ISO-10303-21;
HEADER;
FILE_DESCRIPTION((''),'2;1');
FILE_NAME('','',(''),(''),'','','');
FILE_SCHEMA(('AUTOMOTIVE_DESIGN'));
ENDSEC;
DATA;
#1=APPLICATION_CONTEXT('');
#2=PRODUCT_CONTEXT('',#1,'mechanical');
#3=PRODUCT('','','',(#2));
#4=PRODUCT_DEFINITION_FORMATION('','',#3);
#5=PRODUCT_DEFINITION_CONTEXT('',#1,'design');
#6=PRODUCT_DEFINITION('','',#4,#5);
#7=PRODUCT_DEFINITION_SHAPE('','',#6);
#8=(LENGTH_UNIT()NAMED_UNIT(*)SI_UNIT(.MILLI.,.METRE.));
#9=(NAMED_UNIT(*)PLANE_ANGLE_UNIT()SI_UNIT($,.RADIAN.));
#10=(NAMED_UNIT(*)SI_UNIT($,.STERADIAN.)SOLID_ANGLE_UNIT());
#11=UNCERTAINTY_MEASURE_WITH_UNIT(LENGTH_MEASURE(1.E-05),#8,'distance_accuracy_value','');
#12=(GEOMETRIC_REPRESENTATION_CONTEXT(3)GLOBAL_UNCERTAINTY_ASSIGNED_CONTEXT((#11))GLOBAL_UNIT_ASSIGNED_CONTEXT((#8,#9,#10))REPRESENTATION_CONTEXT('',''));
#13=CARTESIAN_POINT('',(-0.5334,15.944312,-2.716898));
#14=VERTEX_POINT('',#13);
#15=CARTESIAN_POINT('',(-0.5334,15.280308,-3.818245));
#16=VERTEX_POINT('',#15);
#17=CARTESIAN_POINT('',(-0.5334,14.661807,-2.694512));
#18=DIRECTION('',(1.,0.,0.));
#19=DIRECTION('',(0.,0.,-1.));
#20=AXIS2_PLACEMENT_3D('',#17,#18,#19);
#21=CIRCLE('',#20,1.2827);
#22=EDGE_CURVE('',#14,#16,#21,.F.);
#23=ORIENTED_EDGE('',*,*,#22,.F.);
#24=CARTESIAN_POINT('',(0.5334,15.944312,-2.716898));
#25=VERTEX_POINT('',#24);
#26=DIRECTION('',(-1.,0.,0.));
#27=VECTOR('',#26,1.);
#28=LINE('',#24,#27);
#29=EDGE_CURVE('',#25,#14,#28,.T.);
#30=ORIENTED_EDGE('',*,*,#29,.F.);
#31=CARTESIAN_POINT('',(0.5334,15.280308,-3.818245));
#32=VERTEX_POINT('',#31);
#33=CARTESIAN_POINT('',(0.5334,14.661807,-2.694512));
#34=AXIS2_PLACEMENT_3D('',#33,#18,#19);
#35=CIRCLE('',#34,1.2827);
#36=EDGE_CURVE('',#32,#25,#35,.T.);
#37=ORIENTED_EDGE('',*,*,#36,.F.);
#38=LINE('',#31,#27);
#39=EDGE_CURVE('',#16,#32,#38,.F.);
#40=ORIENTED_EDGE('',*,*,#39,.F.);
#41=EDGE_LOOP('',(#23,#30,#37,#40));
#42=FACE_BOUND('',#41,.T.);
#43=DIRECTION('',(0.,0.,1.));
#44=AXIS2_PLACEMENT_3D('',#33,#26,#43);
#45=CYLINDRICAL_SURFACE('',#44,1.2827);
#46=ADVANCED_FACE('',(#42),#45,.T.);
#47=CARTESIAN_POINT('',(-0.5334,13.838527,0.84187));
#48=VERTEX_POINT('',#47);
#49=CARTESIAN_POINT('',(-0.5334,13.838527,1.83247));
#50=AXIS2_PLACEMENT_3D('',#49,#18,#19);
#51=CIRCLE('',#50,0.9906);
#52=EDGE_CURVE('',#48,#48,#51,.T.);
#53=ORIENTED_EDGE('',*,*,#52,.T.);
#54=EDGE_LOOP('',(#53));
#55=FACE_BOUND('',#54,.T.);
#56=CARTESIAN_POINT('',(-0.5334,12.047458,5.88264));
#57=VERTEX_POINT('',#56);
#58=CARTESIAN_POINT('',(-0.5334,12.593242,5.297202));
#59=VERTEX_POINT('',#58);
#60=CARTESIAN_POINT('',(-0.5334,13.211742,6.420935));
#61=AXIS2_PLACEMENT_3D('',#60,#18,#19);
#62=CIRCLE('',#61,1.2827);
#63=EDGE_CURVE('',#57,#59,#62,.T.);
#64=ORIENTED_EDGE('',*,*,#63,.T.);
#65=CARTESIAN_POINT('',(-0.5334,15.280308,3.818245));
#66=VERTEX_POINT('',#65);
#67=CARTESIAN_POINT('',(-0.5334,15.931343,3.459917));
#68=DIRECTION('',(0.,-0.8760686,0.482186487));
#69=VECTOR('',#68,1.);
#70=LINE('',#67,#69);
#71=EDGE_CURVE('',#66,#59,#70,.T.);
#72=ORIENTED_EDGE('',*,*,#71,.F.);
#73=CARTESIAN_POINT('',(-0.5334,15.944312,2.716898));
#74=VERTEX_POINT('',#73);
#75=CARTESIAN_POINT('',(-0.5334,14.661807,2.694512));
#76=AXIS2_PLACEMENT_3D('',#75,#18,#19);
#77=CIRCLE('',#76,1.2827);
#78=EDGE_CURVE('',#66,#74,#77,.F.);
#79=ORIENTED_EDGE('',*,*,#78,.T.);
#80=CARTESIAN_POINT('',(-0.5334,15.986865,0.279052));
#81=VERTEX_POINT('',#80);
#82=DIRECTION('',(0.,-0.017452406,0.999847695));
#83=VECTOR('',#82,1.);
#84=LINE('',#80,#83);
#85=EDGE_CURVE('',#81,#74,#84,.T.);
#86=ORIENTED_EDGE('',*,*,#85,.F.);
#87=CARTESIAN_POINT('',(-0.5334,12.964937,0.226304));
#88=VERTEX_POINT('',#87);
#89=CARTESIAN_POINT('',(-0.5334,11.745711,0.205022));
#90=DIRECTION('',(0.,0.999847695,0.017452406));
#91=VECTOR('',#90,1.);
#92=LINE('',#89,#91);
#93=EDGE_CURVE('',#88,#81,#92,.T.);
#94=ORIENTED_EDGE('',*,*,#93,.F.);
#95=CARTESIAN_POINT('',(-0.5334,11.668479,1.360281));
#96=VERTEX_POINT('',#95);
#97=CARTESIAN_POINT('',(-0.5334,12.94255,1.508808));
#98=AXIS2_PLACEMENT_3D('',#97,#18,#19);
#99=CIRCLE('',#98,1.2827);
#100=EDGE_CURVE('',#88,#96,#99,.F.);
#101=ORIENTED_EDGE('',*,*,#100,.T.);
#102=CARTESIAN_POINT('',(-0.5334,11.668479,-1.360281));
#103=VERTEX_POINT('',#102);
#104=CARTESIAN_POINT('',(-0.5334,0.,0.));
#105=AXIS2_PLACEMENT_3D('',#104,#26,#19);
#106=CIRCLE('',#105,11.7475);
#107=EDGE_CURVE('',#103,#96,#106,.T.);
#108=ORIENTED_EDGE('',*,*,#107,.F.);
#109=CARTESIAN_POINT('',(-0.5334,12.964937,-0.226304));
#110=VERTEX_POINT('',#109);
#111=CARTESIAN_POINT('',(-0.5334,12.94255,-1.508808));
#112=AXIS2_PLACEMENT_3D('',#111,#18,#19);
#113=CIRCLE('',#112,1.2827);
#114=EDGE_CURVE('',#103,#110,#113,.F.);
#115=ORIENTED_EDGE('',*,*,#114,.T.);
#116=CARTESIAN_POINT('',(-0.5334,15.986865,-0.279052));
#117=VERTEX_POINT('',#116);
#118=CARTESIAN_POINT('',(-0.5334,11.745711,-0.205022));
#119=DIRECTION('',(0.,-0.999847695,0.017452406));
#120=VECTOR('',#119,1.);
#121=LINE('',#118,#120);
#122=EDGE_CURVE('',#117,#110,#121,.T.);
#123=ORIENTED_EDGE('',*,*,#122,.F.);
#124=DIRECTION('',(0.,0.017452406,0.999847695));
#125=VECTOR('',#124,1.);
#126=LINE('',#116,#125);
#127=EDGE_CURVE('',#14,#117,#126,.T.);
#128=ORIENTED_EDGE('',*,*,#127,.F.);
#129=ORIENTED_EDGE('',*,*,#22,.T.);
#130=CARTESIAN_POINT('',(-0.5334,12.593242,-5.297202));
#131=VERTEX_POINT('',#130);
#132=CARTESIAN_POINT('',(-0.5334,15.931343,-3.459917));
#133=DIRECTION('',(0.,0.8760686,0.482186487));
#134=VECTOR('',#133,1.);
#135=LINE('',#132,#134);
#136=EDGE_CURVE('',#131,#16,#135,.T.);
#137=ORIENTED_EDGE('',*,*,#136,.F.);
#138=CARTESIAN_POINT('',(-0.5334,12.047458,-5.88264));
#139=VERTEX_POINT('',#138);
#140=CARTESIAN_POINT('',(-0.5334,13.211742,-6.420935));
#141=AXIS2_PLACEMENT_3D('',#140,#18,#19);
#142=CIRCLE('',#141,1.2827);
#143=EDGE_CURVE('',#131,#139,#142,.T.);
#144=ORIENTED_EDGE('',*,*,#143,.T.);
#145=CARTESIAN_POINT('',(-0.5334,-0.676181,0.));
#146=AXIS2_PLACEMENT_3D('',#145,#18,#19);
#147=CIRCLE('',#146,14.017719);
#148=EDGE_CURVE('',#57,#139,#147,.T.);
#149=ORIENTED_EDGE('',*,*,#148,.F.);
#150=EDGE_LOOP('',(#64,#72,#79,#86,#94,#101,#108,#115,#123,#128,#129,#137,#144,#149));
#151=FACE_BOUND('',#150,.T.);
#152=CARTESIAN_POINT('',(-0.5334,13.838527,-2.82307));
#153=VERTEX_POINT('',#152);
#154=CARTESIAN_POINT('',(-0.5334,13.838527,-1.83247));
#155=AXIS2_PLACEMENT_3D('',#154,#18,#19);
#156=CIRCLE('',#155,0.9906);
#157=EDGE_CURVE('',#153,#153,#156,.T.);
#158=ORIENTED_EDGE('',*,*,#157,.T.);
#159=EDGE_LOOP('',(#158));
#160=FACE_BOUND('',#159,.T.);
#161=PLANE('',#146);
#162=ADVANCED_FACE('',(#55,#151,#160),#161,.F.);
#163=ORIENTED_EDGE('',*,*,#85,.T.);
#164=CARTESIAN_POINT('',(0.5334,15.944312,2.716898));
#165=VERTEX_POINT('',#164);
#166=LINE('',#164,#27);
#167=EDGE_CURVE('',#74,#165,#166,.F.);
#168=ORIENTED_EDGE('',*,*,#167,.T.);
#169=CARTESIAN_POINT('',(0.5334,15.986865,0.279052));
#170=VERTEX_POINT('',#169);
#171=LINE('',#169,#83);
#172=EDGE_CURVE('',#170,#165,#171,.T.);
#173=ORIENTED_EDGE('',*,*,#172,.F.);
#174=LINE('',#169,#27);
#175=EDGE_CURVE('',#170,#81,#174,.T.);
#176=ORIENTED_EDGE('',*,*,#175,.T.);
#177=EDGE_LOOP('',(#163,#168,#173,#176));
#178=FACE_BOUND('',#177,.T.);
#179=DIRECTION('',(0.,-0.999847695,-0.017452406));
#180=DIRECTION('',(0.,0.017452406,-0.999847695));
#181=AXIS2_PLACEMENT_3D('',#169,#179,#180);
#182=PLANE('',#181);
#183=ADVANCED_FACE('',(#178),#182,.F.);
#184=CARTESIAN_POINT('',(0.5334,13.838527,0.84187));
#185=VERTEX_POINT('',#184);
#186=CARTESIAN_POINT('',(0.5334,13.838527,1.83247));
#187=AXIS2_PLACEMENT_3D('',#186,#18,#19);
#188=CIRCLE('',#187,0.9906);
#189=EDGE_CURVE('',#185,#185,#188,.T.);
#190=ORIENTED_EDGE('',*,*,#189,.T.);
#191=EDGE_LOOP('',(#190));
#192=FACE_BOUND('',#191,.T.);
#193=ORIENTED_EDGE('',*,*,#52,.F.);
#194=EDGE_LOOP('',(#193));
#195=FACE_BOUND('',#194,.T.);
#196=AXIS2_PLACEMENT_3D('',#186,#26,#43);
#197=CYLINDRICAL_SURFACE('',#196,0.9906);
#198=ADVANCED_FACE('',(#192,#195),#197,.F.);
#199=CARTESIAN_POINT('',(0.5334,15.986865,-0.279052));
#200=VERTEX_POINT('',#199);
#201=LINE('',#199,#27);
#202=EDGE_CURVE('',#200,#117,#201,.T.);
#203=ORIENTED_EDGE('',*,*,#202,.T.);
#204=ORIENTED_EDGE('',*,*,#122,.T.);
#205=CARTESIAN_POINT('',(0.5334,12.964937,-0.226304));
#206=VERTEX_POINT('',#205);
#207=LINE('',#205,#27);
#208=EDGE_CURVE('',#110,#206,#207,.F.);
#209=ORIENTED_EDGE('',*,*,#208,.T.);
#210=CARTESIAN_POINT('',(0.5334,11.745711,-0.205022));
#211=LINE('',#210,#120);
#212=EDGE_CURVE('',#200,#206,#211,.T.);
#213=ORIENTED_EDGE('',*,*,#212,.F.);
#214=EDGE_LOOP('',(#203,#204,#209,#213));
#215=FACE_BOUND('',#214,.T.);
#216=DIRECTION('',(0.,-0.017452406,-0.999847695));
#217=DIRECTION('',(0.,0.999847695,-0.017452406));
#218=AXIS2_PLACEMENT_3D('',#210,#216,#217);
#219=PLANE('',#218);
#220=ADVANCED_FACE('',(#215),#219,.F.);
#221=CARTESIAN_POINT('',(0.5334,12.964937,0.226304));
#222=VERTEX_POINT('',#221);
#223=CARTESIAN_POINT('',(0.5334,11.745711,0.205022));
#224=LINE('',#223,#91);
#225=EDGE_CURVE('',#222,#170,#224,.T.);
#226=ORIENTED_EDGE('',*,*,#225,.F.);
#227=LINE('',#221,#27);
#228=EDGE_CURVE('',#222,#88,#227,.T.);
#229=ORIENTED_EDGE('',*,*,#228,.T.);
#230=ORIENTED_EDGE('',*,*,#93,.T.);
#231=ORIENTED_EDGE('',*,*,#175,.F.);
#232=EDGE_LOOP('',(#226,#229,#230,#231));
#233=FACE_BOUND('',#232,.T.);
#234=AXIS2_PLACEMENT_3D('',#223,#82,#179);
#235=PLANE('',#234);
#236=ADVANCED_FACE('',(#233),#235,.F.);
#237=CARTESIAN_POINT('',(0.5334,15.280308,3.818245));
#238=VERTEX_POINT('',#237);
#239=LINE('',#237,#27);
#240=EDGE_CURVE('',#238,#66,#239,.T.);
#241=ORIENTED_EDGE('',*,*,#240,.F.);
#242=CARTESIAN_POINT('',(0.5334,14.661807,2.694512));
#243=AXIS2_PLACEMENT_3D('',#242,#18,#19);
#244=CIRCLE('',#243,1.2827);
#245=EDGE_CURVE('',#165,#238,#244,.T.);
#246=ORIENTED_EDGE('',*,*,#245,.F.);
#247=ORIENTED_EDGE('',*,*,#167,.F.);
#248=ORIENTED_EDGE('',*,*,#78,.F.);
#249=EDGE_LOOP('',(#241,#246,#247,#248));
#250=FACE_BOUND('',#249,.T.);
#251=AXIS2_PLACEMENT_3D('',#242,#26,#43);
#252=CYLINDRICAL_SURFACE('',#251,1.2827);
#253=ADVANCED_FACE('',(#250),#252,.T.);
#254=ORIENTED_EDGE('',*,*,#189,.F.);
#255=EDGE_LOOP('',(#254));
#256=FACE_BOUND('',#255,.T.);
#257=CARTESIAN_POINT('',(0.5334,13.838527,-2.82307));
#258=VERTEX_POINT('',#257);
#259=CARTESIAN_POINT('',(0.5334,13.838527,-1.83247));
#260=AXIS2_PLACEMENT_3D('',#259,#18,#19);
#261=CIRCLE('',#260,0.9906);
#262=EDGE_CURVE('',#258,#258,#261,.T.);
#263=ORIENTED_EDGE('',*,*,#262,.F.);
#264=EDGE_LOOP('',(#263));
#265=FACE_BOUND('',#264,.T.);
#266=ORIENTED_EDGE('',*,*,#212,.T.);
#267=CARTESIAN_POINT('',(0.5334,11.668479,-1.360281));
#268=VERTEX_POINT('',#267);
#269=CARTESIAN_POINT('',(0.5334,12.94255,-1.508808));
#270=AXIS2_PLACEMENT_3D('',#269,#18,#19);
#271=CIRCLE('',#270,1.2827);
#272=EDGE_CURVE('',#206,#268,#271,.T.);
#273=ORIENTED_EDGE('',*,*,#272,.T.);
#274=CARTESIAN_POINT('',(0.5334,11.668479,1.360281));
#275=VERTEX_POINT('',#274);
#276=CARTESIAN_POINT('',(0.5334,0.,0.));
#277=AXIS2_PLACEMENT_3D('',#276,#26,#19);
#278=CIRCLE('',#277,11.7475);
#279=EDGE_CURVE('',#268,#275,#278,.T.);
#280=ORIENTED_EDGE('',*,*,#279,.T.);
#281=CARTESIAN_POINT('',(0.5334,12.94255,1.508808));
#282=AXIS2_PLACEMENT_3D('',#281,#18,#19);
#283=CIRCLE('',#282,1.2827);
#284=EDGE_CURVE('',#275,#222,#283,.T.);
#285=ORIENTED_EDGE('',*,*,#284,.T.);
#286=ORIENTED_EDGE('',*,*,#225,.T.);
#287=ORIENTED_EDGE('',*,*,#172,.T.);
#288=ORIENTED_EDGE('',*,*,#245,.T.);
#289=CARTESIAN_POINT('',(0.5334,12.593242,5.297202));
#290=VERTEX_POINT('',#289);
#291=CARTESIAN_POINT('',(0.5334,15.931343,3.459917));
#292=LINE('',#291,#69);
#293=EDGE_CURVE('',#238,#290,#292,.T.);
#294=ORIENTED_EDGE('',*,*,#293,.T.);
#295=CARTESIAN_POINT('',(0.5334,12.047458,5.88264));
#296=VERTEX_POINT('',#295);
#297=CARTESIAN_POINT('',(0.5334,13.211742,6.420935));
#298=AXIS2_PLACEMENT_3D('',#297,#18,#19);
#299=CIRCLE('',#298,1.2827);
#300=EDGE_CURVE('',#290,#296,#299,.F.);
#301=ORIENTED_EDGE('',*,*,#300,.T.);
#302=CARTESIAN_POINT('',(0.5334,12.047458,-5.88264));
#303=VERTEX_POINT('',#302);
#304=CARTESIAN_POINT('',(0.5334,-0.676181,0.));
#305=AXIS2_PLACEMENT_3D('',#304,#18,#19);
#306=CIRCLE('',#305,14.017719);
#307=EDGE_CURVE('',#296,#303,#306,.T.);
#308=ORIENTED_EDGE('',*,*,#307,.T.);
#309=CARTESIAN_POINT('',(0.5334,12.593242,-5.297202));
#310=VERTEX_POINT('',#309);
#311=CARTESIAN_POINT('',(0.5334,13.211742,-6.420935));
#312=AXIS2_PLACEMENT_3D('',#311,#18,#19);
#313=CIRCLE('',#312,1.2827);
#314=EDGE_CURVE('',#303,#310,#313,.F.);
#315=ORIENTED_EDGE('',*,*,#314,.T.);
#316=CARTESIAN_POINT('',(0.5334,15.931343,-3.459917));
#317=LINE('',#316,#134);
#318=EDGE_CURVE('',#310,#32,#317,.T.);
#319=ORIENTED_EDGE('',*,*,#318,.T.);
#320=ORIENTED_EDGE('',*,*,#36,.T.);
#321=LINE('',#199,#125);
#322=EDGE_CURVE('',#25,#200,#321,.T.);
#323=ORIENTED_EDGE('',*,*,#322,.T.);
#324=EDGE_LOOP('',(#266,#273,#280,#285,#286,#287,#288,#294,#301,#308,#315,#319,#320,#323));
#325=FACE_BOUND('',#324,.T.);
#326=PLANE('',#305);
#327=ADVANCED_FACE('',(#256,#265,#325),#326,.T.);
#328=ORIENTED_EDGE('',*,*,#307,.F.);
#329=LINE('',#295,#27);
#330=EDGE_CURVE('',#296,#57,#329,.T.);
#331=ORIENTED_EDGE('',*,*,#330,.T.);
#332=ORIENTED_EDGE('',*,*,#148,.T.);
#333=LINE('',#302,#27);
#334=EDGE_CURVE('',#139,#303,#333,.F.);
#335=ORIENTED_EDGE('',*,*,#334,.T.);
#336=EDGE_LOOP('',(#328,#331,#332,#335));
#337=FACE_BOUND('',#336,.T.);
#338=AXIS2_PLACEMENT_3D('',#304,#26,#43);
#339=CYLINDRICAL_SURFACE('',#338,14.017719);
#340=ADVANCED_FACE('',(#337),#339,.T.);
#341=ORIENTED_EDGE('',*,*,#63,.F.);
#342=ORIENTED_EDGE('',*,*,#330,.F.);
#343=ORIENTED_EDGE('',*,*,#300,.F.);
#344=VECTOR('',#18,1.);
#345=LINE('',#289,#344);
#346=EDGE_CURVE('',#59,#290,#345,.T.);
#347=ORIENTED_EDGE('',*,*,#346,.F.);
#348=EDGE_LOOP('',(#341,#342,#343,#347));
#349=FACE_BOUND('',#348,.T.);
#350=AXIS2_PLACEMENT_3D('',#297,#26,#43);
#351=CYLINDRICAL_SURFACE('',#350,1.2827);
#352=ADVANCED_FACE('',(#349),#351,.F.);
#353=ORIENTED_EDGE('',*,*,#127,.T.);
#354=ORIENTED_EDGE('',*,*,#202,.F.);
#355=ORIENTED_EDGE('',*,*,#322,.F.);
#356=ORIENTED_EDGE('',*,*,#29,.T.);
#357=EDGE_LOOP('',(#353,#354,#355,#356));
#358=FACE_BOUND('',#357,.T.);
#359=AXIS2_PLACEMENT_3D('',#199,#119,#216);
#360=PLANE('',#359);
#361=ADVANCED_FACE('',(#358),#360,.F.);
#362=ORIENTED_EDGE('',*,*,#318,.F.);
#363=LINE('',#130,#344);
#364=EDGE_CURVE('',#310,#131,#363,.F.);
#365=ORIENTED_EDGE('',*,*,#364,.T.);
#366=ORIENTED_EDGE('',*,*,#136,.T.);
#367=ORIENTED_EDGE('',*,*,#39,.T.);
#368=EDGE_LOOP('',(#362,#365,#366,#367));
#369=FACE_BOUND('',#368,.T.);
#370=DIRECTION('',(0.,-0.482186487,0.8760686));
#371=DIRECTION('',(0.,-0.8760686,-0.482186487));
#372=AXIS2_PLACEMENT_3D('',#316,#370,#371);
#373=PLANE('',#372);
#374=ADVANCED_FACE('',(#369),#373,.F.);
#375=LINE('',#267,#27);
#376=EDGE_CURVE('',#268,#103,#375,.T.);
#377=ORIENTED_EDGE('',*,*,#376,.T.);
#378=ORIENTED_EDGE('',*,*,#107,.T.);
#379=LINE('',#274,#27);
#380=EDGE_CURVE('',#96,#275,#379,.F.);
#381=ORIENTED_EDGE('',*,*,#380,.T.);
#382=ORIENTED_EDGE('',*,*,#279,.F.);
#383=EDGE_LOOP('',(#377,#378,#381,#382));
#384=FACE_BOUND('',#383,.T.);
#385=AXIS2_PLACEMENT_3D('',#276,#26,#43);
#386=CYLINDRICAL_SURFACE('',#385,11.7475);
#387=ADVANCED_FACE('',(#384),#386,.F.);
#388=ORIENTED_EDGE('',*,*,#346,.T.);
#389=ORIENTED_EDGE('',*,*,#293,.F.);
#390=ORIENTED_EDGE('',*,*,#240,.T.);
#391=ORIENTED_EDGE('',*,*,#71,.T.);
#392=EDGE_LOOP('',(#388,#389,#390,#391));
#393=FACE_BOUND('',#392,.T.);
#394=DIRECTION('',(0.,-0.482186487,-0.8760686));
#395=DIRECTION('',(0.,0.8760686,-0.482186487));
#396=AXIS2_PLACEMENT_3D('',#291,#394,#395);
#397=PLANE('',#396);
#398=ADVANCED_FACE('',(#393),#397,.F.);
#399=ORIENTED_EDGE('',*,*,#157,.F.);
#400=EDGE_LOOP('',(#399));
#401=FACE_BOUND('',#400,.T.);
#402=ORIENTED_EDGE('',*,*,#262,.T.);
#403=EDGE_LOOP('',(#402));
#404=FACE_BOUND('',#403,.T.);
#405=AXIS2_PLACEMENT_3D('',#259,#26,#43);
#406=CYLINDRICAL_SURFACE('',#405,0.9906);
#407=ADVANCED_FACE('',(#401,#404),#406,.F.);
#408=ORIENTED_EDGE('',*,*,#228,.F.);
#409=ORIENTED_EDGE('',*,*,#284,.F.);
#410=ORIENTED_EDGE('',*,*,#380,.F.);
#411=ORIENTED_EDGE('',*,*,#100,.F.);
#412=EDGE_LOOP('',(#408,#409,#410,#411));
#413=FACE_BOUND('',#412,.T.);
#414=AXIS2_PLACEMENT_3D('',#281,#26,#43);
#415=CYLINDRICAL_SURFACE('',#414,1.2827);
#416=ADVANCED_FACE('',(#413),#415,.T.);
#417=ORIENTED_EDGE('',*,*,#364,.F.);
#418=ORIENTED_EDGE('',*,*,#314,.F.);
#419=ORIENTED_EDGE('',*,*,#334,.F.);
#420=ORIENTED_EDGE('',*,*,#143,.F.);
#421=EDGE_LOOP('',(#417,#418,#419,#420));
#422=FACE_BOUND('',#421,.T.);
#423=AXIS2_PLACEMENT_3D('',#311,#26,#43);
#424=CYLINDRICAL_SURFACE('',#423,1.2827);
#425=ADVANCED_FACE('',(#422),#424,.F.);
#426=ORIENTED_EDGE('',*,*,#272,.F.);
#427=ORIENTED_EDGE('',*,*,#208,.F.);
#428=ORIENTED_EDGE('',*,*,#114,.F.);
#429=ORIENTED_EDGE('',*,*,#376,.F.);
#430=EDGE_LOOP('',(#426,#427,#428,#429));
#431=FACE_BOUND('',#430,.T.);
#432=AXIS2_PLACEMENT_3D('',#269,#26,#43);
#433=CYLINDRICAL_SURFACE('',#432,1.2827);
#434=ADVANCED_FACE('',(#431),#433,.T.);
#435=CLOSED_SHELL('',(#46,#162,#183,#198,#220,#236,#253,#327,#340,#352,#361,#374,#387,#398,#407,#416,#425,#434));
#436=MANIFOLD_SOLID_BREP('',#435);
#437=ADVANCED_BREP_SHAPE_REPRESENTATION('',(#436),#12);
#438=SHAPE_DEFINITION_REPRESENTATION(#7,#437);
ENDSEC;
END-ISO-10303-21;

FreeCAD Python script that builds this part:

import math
import FreeCAD as App
import Part
import Sketcher
Q = App.Units.Quantity


def edges_at(feature, points):
    """Names of the edges that pass closest to the given points."""
    edges = feature.Shape.Edges
    near = lambda p: min(range(len(edges)), key=lambda i: edges[i].distToShape(Part.Vertex(*p))[0])
    return sorted({f"Edge{near(p) + 1}" for p in points})

doc = App.newDocument("Part")
params = doc.addObject("Spreadsheet::Sheet", "Params")
for row, (alias, value) in enumerate([
    ("sketch1_diameter", "0.078 in"),
    ("sketch1_length", "0.167 in"),
    ("pad1_length", "0.021 in"),
    ("pad1_length2", "0.021 in"),
    ("fillet_radius", "0.0505 in"),
], start=1):
    params.set(f"A{row}", alias)
    params.set(f"B{row}", "=" + value)
    params.setAlias(f"B{row}", alias)

body = doc.addObject("PartDesign::Body", "Body")

sketch1 = body.newObject("Sketcher::SketchObject", "Sketch")
sketch1.AttachmentSupport = (doc.getObject("YZ_Plane"), [""])
sketch1.MapMode = "FlatFace"
sketch1.addGeometry([
    Part.LineSegment(App.Vector(15.93, 3.46, 0), App.Vector(12.22, 5.51, 0)),
    Part.ArcOfCircle(Part.Circle(App.Vector(-0.68, 0, 0), App.Vector(0, 0, 1), 14.02), math.radians(23), math.radians(337)),
    Part.LineSegment(App.Vector(12.22, -5.51, 0), App.Vector(15.93, -3.46, 0)),
    Part.LineSegment(App.Vector(15.93, -3.46, 0), App.Vector(15.99, -0.28, 0)),
    Part.LineSegment(App.Vector(15.99, -0.28, 0), App.Vector(11.75, -0.21, 0)),
    Part.ArcOfCircle(Part.Circle(App.Vector(0, 0, 0), App.Vector(0, 0, 1), 11.75), math.radians(1), math.radians(359)),
    Part.LineSegment(App.Vector(11.75, 0.21, 0), App.Vector(15.99, 0.28, 0)),
    Part.LineSegment(App.Vector(15.99, 0.28, 0), App.Vector(15.93, 3.46, 0)),
    Part.Circle(App.Vector(13.84, 1.83, 0), App.Vector(0, 0, 1), 0.99),
    Part.Circle(App.Vector(13.84, -1.83, 0), App.Vector(0, 0, 1), 0.99),
], False)
sketch1.addConstraint([
    Sketcher.Constraint("Coincident", 0, 2, 1, 1),
    Sketcher.Constraint("Coincident", 1, 2, 2, 1),
    Sketcher.Constraint("Coincident", 2, 2, 3, 1),
    Sketcher.Constraint("Coincident", 3, 2, 4, 1),
    Sketcher.Constraint("Coincident", 4, 2, 5, 2),
    Sketcher.Constraint("Coincident", 5, 1, 6, 1),
    Sketcher.Constraint("Coincident", 6, 2, 7, 1),
    Sketcher.Constraint("Coincident", 7, 2, 0, 1),
    Sketcher.Constraint("Coincident", 5, 3, -1, 1),
    Sketcher.Constraint("Equal", 8, 9),
    Sketcher.Constraint("Symmetric", 8, 3, 9, 3, -1),
    Sketcher.Constraint("Symmetric", 0, 2, 1, 2, -1),
    Sketcher.Constraint("Symmetric", 3, 2, 6, 2, -1),
    Sketcher.Constraint("Symmetric", 2, 2, 7, 2, -1),
    Sketcher.Constraint("Perpendicular", 3, 4),
    Sketcher.Constraint("Perpendicular", 6, 7),
    Sketcher.Constraint("Equal", 2, 4),
    Sketcher.Constraint("Diameter", 8, Q("0.078 in")),
    Sketcher.Constraint("Angle", 3, Q("89 deg")),
    Sketcher.Constraint("Radius", 5, Q("0.4625 in")),
    Sketcher.Constraint("Distance", 0, Q("0.167 in")),
    Sketcher.Constraint("Radius", 1, Q("14.017719 mm")),
    Sketcher.Constraint("Distance", 3, Q("3.18135 mm")),
    Sketcher.Constraint("DistanceX", 1, 3, -1, 1, Q("0.676181 mm")),
    Sketcher.Constraint("DistanceY", -1, 1, 8, 3, Q("1.83247 mm")),
    Sketcher.Constraint("DistanceY", 3, 2, -1, 1, Q("0.279052 mm")),
    Sketcher.Constraint("DistanceX", 0, 2, 8, 3, Q("1.623292 mm")),
])
sketch1.setExpression("Constraints[17]", "Params.sketch1_diameter")
sketch1.setExpression("Constraints[20]", "Params.sketch1_length")
pad1 = body.newObject("PartDesign::Pad", "Pad")
pad1.Profile = sketch1
pad1.Type = "TwoLengths"
pad1.setExpression("Length", "Params.pad1_length")
pad1.setExpression("Length2", "Params.pad1_length2")
doc.recompute()

fillet = body.newObject("PartDesign::Fillet", "Fillet")
fillet.Base = (pad1, edges_at(pad1, [
    (0, 12.215, 5.505),
    (0, 15.931, 3.46),
    (0, 11.746, 0.205),
    (0, 11.746, -0.205),
    (0, 15.931, -3.46),
    (0, 12.215, -5.505),
]))
fillet.setExpression("Radius", "Params.fillet_radius")

doc.recompute()
